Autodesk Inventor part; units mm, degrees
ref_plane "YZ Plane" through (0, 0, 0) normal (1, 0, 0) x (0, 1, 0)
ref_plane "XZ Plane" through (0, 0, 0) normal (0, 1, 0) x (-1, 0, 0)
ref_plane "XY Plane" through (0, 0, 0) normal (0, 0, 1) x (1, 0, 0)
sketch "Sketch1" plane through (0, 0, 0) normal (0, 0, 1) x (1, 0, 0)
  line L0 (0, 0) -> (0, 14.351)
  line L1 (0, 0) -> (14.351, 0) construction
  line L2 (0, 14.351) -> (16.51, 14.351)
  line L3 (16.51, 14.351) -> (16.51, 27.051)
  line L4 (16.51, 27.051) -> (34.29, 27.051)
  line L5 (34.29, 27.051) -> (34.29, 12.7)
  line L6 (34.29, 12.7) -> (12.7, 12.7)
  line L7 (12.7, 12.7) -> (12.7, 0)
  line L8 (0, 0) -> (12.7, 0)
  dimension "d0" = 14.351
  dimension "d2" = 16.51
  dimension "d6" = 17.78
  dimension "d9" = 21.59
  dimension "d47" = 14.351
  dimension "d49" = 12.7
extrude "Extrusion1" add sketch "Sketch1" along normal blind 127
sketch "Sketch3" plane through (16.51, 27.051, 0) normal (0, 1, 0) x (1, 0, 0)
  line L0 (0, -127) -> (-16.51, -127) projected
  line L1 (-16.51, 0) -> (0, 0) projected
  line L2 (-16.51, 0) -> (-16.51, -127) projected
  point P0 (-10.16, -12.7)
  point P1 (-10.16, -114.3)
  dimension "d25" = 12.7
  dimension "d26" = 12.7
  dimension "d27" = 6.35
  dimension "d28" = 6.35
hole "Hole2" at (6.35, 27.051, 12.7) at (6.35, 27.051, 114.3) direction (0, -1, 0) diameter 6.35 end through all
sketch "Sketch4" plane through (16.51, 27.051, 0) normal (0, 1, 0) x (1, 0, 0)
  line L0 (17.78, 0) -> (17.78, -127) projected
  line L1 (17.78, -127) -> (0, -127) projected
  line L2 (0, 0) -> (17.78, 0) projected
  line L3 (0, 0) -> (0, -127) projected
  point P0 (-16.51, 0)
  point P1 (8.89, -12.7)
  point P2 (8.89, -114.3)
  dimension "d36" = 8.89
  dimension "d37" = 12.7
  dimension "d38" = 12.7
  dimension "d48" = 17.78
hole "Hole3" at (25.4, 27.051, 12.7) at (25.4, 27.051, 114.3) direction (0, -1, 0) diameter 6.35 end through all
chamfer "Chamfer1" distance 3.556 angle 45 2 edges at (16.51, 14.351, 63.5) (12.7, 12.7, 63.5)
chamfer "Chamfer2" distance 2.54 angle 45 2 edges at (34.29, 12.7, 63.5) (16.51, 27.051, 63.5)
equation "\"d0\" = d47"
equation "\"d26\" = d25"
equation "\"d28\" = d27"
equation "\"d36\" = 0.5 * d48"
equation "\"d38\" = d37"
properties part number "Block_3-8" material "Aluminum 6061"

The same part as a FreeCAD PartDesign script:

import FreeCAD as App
import Part
import Sketcher
from FreeCAD import Vector
Q = App.Units.Quantity


def edges_at(feature, points):
    """Names of the edges that pass closest to the given points."""
    edges = feature.Shape.Edges
    near = lambda p: min(range(len(edges)), key=lambda i: edges[i].distToShape(Part.Vertex(*p))[0])
    return sorted({f"Edge{near(p) + 1}" for p in points})

doc = App.newDocument("Part")
params = doc.addObject("Spreadsheet::Sheet", "Params")
for row, (alias, value) in enumerate([
    ("sketch1_width", "0.5 in"),
    ("sketch1_width2", "0.7 in"),
    ("sketch1_width3", "0.85 in"),
    ("sketch1_height", "0.565 in"),
    ("pad1_length", "5 in"),
    ("sketch2_diameter", "0.25 in"),
    ("hole_diameter", "0.25 in"),
    ("sketch3_diameter", "0.25 in"),
    ("hole2_diameter", "0.25 in"),
    ("chamfer_size", "0.14 in"),
    ("chamfer2_size", "0.1 in"),
], start=1):
    params.set(f"A{row}", alias)
    params.set(f"B{row}", "=" + value)
    params.setAlias(f"B{row}", alias)

body = doc.addObject("PartDesign::Body", "Body")

# Sketch on XY plane
sketch1 = body.newObject("Sketcher::SketchObject", "Sketch")
sketch1.AttachmentSupport = (doc.getObject("XY_Plane"), [""])
sketch1.MapMode = "FlatFace"
sketch1.addGeometry(Part.LineSegment(Vector(0, 14.351, 0), Vector(0, 0, 0)), False)
sketch1.addGeometry(Part.LineSegment(Vector(0, 0, 0), Vector(12.7, 0, 0)), False)
sketch1.addGeometry(Part.LineSegment(Vector(12.7, 0, 0), Vector(12.7, 12.7, 0)), False)
sketch1.addGeometry(Part.LineSegment(Vector(12.7, 12.7, 0), Vector(34.29, 12.7, 0)), False)
sketch1.addGeometry(Part.LineSegment(Vector(34.29, 12.7, 0), Vector(34.29, 27.051, 0)), False)
sketch1.addGeometry(Part.LineSegment(Vector(34.29, 27.051, 0), Vector(16.51, 27.051, 0)), False)
sketch1.addGeometry(Part.LineSegment(Vector(16.51, 27.051, 0), Vector(16.51, 14.351, 0)), False)
sketch1.addGeometry(Part.LineSegment(Vector(16.51, 14.351, 0), Vector(0, 14.351, 0)), False)
sketch1.addConstraint(Sketcher.Constraint("Coincident", 0, 2, 1, 1))
sketch1.addConstraint(Sketcher.Constraint("Coincident", 1, 2, 2, 1))
sketch1.addConstraint(Sketcher.Constraint("Coincident", 2, 2, 3, 1))
sketch1.addConstraint(Sketcher.Constraint("Coincident", 3, 2, 4, 1))
sketch1.addConstraint(Sketcher.Constraint("Coincident", 4, 2, 5, 1))
sketch1.addConstraint(Sketcher.Constraint("Coincident", 5, 2, 6, 1))
sketch1.addConstraint(Sketcher.Constraint("Coincident", 6, 2, 7, 1))
sketch1.addConstraint(Sketcher.Constraint("Coincident", 7, 2, 0, 1))
sketch1.addConstraint(Sketcher.Constraint("Vertical", 0))
sketch1.addConstraint(Sketcher.Constraint("Horizontal", 1))
sketch1.addConstraint(Sketcher.Constraint("Vertical", 2))
sketch1.addConstraint(Sketcher.Constraint("Horizontal", 3))
sketch1.addConstraint(Sketcher.Constraint("Vertical", 4))
sketch1.addConstraint(Sketcher.Constraint("Horizontal", 5))
sketch1.addConstraint(Sketcher.Constraint("Vertical", 6))
sketch1.addConstraint(Sketcher.Constraint("Horizontal", 7))
sketch1.addConstraint(Sketcher.Constraint("Coincident", 0, 2, -1, 1))
sketch1.addConstraint(Sketcher.Constraint("Equal", 1, 2))
sketch1.addConstraint(Sketcher.Constraint("Equal", 0, 4))
sketch1.addConstraint(Sketcher.Constraint("DistanceX", 1, 1, 1, 2, Q("0.5 in")))
sketch1.addConstraint(Sketcher.Constraint("DistanceX", 5, 2, 5, 1, Q("0.7 in")))
sketch1.addConstraint(Sketcher.Constraint("DistanceX", 3, 1, 3, 2, Q("0.85 in")))
sketch1.addConstraint(Sketcher.Constraint("DistanceY", 0, 2, 0, 1, Q("0.565 in")))
sketch1.setExpression("Constraints[19]", "Params.sketch1_width")
sketch1.setExpression("Constraints[20]", "Params.sketch1_width2")
sketch1.setExpression("Constraints[21]", "Params.sketch1_width3")
sketch1.setExpression("Constraints[22]", "Params.sketch1_height")
pad1 = body.newObject("PartDesign::Pad", "Pad")
pad1.Profile = sketch1
pad1.setExpression("Length", "Params.pad1_length")

# Sketch on XZ plane
sketch2 = body.newObject("Sketcher::SketchObject", "Sketch001")
sketch2.AttachmentSupport = (doc.getObject("XZ_Plane"), [""])
sketch2.MapMode = "FlatFace"
sketch2.AttachmentOffset = App.Placement(Vector(0, 0, -1.065 * 25.4), App.Rotation())
sketch2.addGeometry(Part.Circle(Vector(6.35, 12.7, 0), Vector(0, 0, 1), 3.175), False)
sketch2.addGeometry(Part.Circle(Vector(6.35, 114.3, 0), Vector(0, 0, 1), 3.175), False)
sketch2.addConstraint(Sketcher.Constraint("Equal", 0, 1))
sketch2.addConstraint(Sketcher.Constraint("Vertical", 0, 3, 1, 3))
sketch2.addConstraint(Sketcher.Constraint("Diameter", 0, Q("0.25 in")))
sketch2.addConstraint(Sketcher.Constraint("DistanceY", 0, 3, 1, 3, Q("4 in")))
sketch2.addConstraint(Sketcher.Constraint("DistanceY", -1, 1, 0, 3, Q("0.5 in")))
sketch2.addConstraint(Sketcher.Constraint("DistanceX", -1, 1, 0, 3, Q("0.25 in")))
sketch2.setExpression("Constraints[2]", "Params.sketch2_diameter")
doc.recompute()
hole = body.newObject("PartDesign::Hole", "Hole")
hole.Profile = sketch2
hole.ThreadType = "None"
hole.setExpression("Diameter", "Params.hole_diameter")
hole.DepthType = "ThroughAll"
hole.Reversed = True

# Sketch on XZ plane
sketch3 = body.newObject("Sketcher::SketchObject", "Sketch002")
sketch3.AttachmentSupport = (doc.getObject("XZ_Plane"), [""])
sketch3.MapMode = "FlatFace"
sketch3.AttachmentOffset = App.Placement(Vector(0, 0, -1.065 * 25.4), App.Rotation())
sketch3.addGeometry(Part.Circle(Vector(25.4, 12.7, 0), Vector(0, 0, 1), 3.175), False)
sketch3.addGeometry(Part.Circle(Vector(25.4, 114.3, 0), Vector(0, 0, 1), 3.175), False)
sketch3.addConstraint(Sketcher.Constraint("Equal", 0, 1))
sketch3.addConstraint(Sketcher.Constraint("Vertical", 0, 3, 1, 3))
sketch3.addConstraint(Sketcher.Constraint("Diameter", 0, Q("0.25 in")))
sketch3.addConstraint(Sketcher.Constraint("DistanceX", -1, 1, 0, 3, Q("1 in")))
sketch3.addConstraint(Sketcher.Constraint("DistanceY", 0, 3, 1, 3, Q("4 in")))
sketch3.addConstraint(Sketcher.Constraint("DistanceY", -1, 1, 0, 3, Q("0.5 in")))
sketch3.setExpression("Constraints[2]", "Params.sketch3_diameter")
doc.recompute()
hole2 = body.newObject("PartDesign::Hole", "Hole001")
hole2.Profile = sketch3
hole2.ThreadType = "None"
hole2.setExpression("Diameter", "Params.hole2_diameter")
hole2.DepthType = "ThroughAll"
hole2.Reversed = True
doc.recompute()

chamfer = body.newObject("PartDesign::Chamfer", "Chamfer")
chamfer.Base = (hole2, edges_at(hole2, [(16.51, 14.351, 63.5), (12.7, 12.7, 63.5)]))
chamfer.setExpression("Size", "Params.chamfer_size")
doc.recompute()

chamfer2 = body.newObject("PartDesign::Chamfer", "Chamfer001")
chamfer2.Base = (chamfer, edges_at(chamfer, [(34.29, 12.7, 63.5), (16.51, 27.051, 63.5)]))
chamfer2.setExpression("Size", "Params.chamfer2_size")

doc.recompute()
